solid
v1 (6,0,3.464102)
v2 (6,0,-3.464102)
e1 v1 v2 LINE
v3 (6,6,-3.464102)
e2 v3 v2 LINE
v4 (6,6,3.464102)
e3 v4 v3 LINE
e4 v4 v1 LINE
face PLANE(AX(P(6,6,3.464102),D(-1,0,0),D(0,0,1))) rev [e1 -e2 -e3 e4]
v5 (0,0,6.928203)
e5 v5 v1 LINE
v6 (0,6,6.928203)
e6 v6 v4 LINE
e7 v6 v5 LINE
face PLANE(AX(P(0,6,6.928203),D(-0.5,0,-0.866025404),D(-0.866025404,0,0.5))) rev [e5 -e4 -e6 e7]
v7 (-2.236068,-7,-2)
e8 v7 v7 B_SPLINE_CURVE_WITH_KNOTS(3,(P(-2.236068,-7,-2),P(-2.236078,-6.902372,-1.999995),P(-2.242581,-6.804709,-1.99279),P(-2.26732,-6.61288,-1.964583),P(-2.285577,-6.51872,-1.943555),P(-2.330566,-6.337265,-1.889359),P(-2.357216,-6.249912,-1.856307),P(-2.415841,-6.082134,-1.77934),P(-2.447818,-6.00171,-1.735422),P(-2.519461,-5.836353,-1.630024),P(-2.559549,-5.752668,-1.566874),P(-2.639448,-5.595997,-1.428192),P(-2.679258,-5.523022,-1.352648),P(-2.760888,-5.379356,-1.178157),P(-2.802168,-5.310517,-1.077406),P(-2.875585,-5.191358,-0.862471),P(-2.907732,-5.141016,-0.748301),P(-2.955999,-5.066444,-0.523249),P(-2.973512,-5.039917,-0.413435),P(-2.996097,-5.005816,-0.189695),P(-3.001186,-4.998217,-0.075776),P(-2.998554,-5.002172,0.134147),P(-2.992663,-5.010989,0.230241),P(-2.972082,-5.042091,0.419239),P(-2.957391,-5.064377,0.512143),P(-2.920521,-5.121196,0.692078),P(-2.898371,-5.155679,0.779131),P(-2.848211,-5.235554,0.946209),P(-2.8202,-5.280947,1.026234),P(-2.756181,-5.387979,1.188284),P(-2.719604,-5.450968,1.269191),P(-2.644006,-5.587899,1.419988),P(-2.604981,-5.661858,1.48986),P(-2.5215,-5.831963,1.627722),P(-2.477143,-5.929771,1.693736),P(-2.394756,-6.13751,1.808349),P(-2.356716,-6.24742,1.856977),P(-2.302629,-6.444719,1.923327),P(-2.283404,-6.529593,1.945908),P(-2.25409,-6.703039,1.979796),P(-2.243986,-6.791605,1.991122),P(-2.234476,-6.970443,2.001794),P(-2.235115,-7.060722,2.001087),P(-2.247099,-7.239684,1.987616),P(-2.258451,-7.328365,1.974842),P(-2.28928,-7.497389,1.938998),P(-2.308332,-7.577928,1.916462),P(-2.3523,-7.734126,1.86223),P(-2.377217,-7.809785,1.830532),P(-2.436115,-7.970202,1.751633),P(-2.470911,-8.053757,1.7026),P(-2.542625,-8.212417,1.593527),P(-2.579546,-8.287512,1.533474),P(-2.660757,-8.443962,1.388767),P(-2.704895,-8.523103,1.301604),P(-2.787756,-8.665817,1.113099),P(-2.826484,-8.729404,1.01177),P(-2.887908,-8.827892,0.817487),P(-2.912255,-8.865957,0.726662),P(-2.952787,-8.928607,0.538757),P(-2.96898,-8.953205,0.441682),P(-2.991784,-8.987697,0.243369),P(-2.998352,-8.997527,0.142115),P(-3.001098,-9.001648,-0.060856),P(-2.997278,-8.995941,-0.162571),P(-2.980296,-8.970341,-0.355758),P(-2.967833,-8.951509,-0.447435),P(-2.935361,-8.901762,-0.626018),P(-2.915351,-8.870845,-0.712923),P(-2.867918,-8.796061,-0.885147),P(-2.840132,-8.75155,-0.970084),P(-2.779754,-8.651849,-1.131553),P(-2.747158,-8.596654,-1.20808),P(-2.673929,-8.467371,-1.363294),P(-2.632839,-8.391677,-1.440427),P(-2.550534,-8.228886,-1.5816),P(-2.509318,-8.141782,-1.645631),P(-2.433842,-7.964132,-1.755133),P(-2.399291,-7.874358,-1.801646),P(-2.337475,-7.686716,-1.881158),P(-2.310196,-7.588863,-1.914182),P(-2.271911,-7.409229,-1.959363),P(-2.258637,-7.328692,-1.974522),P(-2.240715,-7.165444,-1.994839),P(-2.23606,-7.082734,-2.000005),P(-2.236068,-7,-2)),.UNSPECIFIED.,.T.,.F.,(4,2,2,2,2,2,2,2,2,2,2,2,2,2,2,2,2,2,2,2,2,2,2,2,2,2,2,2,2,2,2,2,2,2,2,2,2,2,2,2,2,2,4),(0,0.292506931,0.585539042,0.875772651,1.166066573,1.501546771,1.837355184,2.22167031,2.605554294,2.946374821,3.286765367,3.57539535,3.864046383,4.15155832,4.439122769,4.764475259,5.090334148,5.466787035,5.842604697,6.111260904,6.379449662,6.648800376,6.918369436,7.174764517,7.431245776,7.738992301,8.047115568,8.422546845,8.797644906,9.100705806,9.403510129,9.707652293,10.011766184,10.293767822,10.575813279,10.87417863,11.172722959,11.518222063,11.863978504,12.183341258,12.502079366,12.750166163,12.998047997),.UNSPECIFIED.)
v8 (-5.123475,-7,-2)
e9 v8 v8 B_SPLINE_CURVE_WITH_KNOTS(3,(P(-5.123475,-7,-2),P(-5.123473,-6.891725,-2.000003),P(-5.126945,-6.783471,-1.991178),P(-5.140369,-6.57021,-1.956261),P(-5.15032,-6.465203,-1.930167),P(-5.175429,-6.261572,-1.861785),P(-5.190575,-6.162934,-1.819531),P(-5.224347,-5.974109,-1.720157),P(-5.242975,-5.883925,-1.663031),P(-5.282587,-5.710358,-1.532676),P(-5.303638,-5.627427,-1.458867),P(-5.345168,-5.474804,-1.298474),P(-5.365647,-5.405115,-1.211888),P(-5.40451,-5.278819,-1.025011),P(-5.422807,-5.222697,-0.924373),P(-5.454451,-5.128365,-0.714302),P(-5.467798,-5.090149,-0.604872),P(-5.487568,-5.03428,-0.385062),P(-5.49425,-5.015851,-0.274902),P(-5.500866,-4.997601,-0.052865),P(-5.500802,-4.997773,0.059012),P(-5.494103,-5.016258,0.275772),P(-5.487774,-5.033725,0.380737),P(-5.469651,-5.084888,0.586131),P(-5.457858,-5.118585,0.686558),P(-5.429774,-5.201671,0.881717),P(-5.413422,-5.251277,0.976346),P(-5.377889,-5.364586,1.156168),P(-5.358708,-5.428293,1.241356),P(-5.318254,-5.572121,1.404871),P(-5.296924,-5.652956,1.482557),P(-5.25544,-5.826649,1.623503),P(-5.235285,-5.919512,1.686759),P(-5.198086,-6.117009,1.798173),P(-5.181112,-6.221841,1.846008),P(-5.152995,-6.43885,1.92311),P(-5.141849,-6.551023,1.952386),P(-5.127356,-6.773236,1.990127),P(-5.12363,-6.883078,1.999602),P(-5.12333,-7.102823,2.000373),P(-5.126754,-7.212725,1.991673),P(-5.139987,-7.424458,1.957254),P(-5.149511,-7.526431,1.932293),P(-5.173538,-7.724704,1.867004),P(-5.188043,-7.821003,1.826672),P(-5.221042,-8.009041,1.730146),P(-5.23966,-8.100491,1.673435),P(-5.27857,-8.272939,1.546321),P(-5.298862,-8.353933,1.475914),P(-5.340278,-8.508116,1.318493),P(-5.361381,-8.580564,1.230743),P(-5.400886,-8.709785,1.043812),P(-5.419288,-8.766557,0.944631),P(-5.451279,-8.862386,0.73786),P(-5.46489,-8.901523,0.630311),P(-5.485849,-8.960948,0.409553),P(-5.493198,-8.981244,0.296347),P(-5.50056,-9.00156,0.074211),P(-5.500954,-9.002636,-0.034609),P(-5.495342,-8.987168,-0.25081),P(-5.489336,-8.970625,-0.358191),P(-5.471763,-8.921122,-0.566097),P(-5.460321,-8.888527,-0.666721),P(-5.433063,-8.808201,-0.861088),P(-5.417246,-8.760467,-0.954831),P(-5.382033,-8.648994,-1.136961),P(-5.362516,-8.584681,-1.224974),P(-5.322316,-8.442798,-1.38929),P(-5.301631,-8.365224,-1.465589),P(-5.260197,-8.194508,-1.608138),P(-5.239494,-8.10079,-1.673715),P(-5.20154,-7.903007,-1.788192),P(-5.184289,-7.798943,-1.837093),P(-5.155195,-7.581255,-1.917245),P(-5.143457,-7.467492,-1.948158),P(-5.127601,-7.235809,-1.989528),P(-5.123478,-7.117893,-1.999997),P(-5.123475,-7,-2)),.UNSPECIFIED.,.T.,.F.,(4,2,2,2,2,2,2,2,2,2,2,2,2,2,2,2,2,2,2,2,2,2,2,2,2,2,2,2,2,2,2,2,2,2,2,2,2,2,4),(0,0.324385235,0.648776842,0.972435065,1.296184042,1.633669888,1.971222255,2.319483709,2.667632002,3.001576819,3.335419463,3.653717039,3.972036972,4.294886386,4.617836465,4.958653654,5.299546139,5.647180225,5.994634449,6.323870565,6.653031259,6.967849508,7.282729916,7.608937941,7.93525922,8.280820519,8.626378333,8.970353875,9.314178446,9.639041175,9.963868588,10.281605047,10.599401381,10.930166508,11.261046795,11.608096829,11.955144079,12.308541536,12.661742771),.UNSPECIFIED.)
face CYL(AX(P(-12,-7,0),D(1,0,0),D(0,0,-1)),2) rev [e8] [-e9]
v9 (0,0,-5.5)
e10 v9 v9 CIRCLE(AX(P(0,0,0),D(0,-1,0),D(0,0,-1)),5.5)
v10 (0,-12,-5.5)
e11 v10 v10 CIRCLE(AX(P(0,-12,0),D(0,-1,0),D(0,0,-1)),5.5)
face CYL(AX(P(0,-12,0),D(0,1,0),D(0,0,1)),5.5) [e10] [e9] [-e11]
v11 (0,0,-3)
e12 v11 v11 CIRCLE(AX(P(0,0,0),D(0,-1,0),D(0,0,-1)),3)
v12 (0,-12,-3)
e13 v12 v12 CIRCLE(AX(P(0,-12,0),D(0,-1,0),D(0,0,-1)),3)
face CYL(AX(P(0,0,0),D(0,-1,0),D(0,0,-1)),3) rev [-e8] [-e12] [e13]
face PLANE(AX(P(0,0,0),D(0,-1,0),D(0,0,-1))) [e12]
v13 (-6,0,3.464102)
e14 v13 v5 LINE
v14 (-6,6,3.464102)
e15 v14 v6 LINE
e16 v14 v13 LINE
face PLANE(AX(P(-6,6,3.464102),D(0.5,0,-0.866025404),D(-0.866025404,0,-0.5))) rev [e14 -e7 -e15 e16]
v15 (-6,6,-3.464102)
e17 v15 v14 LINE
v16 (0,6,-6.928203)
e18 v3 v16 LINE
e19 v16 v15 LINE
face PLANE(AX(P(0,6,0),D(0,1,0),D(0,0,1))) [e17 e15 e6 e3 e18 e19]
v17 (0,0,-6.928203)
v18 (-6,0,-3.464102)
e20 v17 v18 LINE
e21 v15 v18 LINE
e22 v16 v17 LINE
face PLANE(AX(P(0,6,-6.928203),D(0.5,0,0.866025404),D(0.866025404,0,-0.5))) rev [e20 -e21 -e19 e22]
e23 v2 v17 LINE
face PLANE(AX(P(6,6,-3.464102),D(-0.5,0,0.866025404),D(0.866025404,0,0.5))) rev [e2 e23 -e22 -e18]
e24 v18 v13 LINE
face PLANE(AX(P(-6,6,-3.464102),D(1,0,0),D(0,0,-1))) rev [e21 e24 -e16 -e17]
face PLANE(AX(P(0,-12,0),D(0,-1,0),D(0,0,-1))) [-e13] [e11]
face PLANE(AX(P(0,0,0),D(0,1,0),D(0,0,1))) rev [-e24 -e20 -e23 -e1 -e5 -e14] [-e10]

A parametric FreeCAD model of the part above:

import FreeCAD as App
import Part
import Sketcher
Q = App.Units.Quantity

doc = App.newDocument("Part")
body = doc.addObject("PartDesign::Body", "Body")

# Sketch on XZ plane
sketch1 = doc.addObject("Sketcher::SketchObject", "Sketch")
body.addObject(sketch1)
sketch1.AttachmentSupport = (doc.XZ_Plane, [""])
sketch1.MapMode = "FlatFace"
sketch1.addGeometry(Part.LineSegment(App.Vector(0, -7, 0), App.Vector(-6, -3, 0)), False)
sketch1.addGeometry(Part.LineSegment(App.Vector(-6, -3, 0), App.Vector(-6, 3, 0)), False)
sketch1.addGeometry(Part.LineSegment(App.Vector(-6, 3, 0), App.Vector(0, 7, 0)), False)
sketch1.addGeometry(Part.LineSegment(App.Vector(0, 7, 0), App.Vector(6, 3, 0)), False)
sketch1.addGeometry(Part.LineSegment(App.Vector(6, 3, 0), App.Vector(6, -3, 0)), False)
sketch1.addGeometry(Part.LineSegment(App.Vector(6, -3, 0), App.Vector(0, -7, 0)), False)
sketch1.addConstraint(Sketcher.Constraint("Coincident", 0, 2, 1, 1))
sketch1.addConstraint(Sketcher.Constraint("Coincident", 1, 2, 2, 1))
sketch1.addConstraint(Sketcher.Constraint("Coincident", 2, 2, 3, 1))
sketch1.addConstraint(Sketcher.Constraint("Coincident", 3, 2, 4, 1))
sketch1.addConstraint(Sketcher.Constraint("Coincident", 4, 2, 5, 1))
sketch1.addConstraint(Sketcher.Constraint("Coincident", 5, 2, 0, 1))
sketch1.addConstraint(Sketcher.Constraint("Vertical", 1))
sketch1.addConstraint(Sketcher.Constraint("Vertical", 4))
sketch1.addConstraint(Sketcher.Constraint("Symmetric", 0, 2, 3, 2, -1, 1))
sketch1.addConstraint(Sketcher.Constraint("Symmetric", 2, 2, 5, 2, -1, 1))
sketch1.addConstraint(Sketcher.Constraint("PointOnObject", 2, 2, -2))
sketch1.addConstraint(Sketcher.Constraint("Parallel", 2, 5))
sketch1.addConstraint(Sketcher.Constraint("Horizontal", 1, 2, 3, 2))
sketch1.addConstraint(Sketcher.Constraint("Angle", 0, Q("150 deg")))
sketch1.addConstraint(Sketcher.Constraint("DistanceX", 0, 2, -1, 1, 6.0))
sketch1.addConstraint(Sketcher.Constraint("DistanceY", 0, 2, -1, 1, 3.464102))
pad1 = doc.addObject("PartDesign::Pad", "Pad")
body.addObject(pad1)
pad1.Profile = sketch1
pad1.Length = 6
pad1.Reversed = True

# Sketch on XZ plane
sketch2 = doc.addObject("Sketcher::SketchObject", "Sketch001")
body.addObject(sketch2)
sketch2.AttachmentSupport = (doc.XZ_Plane, [""])
sketch2.MapMode = "FlatFace"
sketch2.addGeometry(Part.Circle(App.Vector(0, 0, 0), App.Vector(0, 0, 1), 6), False)
sketch2.addConstraint(Sketcher.Constraint("Coincident", 0, 3, -1, 1))
sketch2.addConstraint(Sketcher.Constraint("Diameter", 0, 11.0))
pad2 = doc.addObject("PartDesign::Pad", "Pad001")
body.addObject(pad2)
pad2.Profile = sketch2
pad2.Length = 12

# Sketch on YZ plane
sketch3 = doc.addObject("Sketcher::SketchObject", "Sketch002")
body.addObject(sketch3)
sketch3.AttachmentSupport = (doc.YZ_Plane, [""])
sketch3.MapMode = "FlatFace"
sketch3.addGeometry(Part.Circle(App.Vector(-7, 0, 0), App.Vector(0, 0, 1), 2), False)
sketch3.addConstraint(Sketcher.Constraint("PointOnObject", 0, 3, -1))
sketch3.addConstraint(Sketcher.Constraint("Diameter", 0, 4.0))
sketch3.addConstraint(Sketcher.Constraint("DistanceX", 0, 3, -1, 1, 7.0))
pocket1 = doc.addObject("PartDesign::Pocket", "Pocket")
body.addObject(pocket1)
pocket1.Profile = sketch3
pocket1.Length = 12

# Sketch on XZ plane
sketch4 = doc.addObject("Sketcher::SketchObject", "Sketch003")
body.addObject(sketch4)
sketch4.AttachmentSupport = (doc.XZ_Plane, [""])
sketch4.MapMode = "FlatFace"
sketch4.AttachmentOffset = App.Placement(App.Vector(0, 0, 12), App.Rotation())
sketch4.addGeometry(Part.Circle(App.Vector(0, 0, 0), App.Vector(0, 0, 1), 3), False)
sketch4.addConstraint(Sketcher.Constraint("Coincident", 0, 3, -1, 1))
sketch4.addConstraint(Sketcher.Constraint("Diameter", 0, 6.0))
pocket2 = doc.addObject("PartDesign::Pocket", "Pocket001")
body.addObject(pocket2)
pocket2.Profile = sketch4
pocket2.Length = 12

doc.recompute()
